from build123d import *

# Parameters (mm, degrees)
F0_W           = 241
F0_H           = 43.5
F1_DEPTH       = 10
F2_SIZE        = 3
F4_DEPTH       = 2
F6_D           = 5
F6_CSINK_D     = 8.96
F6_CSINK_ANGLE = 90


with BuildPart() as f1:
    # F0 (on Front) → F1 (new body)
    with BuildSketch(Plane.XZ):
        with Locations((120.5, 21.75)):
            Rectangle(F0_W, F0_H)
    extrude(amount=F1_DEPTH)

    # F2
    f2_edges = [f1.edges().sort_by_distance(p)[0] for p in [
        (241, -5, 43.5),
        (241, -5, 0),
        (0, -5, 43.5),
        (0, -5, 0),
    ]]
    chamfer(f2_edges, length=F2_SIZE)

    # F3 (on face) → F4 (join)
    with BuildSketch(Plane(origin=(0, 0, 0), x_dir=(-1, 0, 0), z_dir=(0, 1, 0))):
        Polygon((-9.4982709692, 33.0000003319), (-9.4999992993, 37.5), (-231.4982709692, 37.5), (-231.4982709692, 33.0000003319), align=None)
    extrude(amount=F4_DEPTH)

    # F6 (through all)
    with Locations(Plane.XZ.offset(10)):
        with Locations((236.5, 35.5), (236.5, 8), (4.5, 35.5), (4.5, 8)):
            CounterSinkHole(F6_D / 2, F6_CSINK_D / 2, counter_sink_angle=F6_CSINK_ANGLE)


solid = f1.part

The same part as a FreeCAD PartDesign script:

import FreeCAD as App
import Part
import Sketcher
Q = App.Units.Quantity


def edges_at(feature, points):
    """Names of the edges that pass closest to the given points."""
    edges = feature.Shape.Edges
    near = lambda p: min(range(len(edges)), key=lambda i: edges[i].distToShape(Part.Vertex(*p))[0])
    return sorted({f"Edge{near(p) + 1}" for p in points})


def add_polygon(sketch, points):
    """Adds a closed chain of lines whose ends are joined by coincident constraints."""
    first, n = sketch.GeometryCount, len(points)
    for a, b in zip(points, points[1:] + points[:1]):
        sketch.addGeometry(Part.LineSegment(App.Vector(*a, 0), App.Vector(*b, 0)), False)
    for i in range(n):
        sketch.addConstraint(Sketcher.Constraint("Coincident", first + i, 2, first + (i + 1) % n, 1))

doc = App.newDocument("Part")
body = doc.addObject("PartDesign::Body", "Body")

sketch1 = body.newObject("Sketcher::SketchObject", "Sketch")
sketch1.AttachmentSupport = (doc.getObject("XZ_Plane"), [""])
sketch1.MapMode = "FlatFace"
add_polygon(sketch1, [(0, 44), (0, 0), (241, 0), (241, 44)])
sketch1.addConstraint([
    Sketcher.Constraint("Vertical", 0),
    Sketcher.Constraint("Horizontal", 1),
    Sketcher.Constraint("Vertical", 2),
    Sketcher.Constraint("Horizontal", 3),
    Sketcher.Constraint("Coincident", 0, 2, -1, 1),
    Sketcher.Constraint("DistanceX", 1, 1, 1, 2, Q("241 mm")),
    Sketcher.Constraint("DistanceY", 0, 2, 0, 1, Q("43.5 mm")),
])
pad1 = body.newObject("PartDesign::Pad", "Pad")
pad1.Profile = sketch1
pad1.Length = 10
doc.recompute()

chamfer = body.newObject("PartDesign::Chamfer", "Chamfer")
chamfer.Base = (pad1, edges_at(pad1, [
    (241, -5, 43.5),
    (241, -5, 0),
    (0, -5, 43.5),
    (0, -5, 0),
]))
chamfer.Size = 3

sketch2 = body.newObject("Sketcher::SketchObject", "Sketch001")
sketch2.AttachmentSupport = (doc.getObject("XZ_Plane"), [""])
sketch2.MapMode = "FlatFace"
add_polygon(sketch2, [(9.5, 33), (9.5, 37.5), (231.5, 37.5), (231.5, 33)])
sketch2.addConstraint([
    Sketcher.Constraint("Horizontal", 1),
    Sketcher.Constraint("Vertical", 2),
    Sketcher.Constraint("Horizontal", 3),
    Sketcher.Constraint("DistanceX", 3, 2, 3, 1, Q("222 mm")),
    Sketcher.Constraint("DistanceY", 2, 2, 2, 1, Q("4.5 mm")),
    Sketcher.Constraint("DistanceY", -1, 1, 2, 2, Q("33 mm")),
    Sketcher.Constraint("DistanceX", -1, 1, 0, 2, Q("9.499999 mm")),
    Sketcher.Constraint("DistanceX", 1, 1, 1, 2, Q("221.998272 mm")),
])
pad2 = body.newObject("PartDesign::Pad", "Pad001")
pad2.Profile = sketch2
pad2.Length = 2
pad2.Reversed = True

sketch3 = body.newObject("Sketcher::SketchObject", "Sketch002")
sketch3.AttachmentSupport = (doc.getObject("XZ_Plane"), [""])
sketch3.MapMode = "FlatFace"
sketch3.AttachmentOffset = App.Placement(App.Vector(0, 0, 10), App.Rotation())
sketch3.addGeometry([
    Part.Circle(App.Vector(236.5, 35.5, 0), App.Vector(0, 0, 1), 2.5),
    Part.Circle(App.Vector(236.5, 8, 0), App.Vector(0, 0, 1), 2.5),
    Part.Circle(App.Vector(4.5, 35.5, 0), App.Vector(0, 0, 1), 2.5),
    Part.Circle(App.Vector(4.5, 8, 0), App.Vector(0, 0, 1), 2.5),
], False)
sketch3.addConstraint([
    Sketcher.Constraint("Equal", 0, 1),
    Sketcher.Constraint("Equal", 1, 2),
    Sketcher.Constraint("Equal", 2, 3),
    Sketcher.Constraint("Horizontal", 0, 3, 2, 3),
    Sketcher.Constraint("Horizontal", 1, 3, 3, 3),
    Sketcher.Constraint("Vertical", 0, 3, 1, 3),
    Sketcher.Constraint("Vertical", 2, 3, 3, 3),
    Sketcher.Constraint("Diameter", 0, Q("5 mm")),
    Sketcher.Constraint("DistanceY", -1, 1, 1, 3, Q("8 mm")),
    Sketcher.Constraint("DistanceX", 2, 3, 0, 3, Q("232 mm")),
    Sketcher.Constraint("DistanceX", -1, 1, 0, 3, Q("236.5 mm")),
    Sketcher.Constraint("DistanceY", -1, 1, 0, 3, Q("35.5 mm")),
])
doc.recompute()
hole = body.newObject("PartDesign::Hole", "Hole")
hole.Profile = sketch3
hole.ThreadType = "None"
hole.Diameter = 5
hole.DepthType = "ThroughAll"
hole.HoleCutType = "Countersink"
hole.HoleCutDiameter = 8.96
hole.HoleCutCountersinkAngle = 90

doc.recompute()
